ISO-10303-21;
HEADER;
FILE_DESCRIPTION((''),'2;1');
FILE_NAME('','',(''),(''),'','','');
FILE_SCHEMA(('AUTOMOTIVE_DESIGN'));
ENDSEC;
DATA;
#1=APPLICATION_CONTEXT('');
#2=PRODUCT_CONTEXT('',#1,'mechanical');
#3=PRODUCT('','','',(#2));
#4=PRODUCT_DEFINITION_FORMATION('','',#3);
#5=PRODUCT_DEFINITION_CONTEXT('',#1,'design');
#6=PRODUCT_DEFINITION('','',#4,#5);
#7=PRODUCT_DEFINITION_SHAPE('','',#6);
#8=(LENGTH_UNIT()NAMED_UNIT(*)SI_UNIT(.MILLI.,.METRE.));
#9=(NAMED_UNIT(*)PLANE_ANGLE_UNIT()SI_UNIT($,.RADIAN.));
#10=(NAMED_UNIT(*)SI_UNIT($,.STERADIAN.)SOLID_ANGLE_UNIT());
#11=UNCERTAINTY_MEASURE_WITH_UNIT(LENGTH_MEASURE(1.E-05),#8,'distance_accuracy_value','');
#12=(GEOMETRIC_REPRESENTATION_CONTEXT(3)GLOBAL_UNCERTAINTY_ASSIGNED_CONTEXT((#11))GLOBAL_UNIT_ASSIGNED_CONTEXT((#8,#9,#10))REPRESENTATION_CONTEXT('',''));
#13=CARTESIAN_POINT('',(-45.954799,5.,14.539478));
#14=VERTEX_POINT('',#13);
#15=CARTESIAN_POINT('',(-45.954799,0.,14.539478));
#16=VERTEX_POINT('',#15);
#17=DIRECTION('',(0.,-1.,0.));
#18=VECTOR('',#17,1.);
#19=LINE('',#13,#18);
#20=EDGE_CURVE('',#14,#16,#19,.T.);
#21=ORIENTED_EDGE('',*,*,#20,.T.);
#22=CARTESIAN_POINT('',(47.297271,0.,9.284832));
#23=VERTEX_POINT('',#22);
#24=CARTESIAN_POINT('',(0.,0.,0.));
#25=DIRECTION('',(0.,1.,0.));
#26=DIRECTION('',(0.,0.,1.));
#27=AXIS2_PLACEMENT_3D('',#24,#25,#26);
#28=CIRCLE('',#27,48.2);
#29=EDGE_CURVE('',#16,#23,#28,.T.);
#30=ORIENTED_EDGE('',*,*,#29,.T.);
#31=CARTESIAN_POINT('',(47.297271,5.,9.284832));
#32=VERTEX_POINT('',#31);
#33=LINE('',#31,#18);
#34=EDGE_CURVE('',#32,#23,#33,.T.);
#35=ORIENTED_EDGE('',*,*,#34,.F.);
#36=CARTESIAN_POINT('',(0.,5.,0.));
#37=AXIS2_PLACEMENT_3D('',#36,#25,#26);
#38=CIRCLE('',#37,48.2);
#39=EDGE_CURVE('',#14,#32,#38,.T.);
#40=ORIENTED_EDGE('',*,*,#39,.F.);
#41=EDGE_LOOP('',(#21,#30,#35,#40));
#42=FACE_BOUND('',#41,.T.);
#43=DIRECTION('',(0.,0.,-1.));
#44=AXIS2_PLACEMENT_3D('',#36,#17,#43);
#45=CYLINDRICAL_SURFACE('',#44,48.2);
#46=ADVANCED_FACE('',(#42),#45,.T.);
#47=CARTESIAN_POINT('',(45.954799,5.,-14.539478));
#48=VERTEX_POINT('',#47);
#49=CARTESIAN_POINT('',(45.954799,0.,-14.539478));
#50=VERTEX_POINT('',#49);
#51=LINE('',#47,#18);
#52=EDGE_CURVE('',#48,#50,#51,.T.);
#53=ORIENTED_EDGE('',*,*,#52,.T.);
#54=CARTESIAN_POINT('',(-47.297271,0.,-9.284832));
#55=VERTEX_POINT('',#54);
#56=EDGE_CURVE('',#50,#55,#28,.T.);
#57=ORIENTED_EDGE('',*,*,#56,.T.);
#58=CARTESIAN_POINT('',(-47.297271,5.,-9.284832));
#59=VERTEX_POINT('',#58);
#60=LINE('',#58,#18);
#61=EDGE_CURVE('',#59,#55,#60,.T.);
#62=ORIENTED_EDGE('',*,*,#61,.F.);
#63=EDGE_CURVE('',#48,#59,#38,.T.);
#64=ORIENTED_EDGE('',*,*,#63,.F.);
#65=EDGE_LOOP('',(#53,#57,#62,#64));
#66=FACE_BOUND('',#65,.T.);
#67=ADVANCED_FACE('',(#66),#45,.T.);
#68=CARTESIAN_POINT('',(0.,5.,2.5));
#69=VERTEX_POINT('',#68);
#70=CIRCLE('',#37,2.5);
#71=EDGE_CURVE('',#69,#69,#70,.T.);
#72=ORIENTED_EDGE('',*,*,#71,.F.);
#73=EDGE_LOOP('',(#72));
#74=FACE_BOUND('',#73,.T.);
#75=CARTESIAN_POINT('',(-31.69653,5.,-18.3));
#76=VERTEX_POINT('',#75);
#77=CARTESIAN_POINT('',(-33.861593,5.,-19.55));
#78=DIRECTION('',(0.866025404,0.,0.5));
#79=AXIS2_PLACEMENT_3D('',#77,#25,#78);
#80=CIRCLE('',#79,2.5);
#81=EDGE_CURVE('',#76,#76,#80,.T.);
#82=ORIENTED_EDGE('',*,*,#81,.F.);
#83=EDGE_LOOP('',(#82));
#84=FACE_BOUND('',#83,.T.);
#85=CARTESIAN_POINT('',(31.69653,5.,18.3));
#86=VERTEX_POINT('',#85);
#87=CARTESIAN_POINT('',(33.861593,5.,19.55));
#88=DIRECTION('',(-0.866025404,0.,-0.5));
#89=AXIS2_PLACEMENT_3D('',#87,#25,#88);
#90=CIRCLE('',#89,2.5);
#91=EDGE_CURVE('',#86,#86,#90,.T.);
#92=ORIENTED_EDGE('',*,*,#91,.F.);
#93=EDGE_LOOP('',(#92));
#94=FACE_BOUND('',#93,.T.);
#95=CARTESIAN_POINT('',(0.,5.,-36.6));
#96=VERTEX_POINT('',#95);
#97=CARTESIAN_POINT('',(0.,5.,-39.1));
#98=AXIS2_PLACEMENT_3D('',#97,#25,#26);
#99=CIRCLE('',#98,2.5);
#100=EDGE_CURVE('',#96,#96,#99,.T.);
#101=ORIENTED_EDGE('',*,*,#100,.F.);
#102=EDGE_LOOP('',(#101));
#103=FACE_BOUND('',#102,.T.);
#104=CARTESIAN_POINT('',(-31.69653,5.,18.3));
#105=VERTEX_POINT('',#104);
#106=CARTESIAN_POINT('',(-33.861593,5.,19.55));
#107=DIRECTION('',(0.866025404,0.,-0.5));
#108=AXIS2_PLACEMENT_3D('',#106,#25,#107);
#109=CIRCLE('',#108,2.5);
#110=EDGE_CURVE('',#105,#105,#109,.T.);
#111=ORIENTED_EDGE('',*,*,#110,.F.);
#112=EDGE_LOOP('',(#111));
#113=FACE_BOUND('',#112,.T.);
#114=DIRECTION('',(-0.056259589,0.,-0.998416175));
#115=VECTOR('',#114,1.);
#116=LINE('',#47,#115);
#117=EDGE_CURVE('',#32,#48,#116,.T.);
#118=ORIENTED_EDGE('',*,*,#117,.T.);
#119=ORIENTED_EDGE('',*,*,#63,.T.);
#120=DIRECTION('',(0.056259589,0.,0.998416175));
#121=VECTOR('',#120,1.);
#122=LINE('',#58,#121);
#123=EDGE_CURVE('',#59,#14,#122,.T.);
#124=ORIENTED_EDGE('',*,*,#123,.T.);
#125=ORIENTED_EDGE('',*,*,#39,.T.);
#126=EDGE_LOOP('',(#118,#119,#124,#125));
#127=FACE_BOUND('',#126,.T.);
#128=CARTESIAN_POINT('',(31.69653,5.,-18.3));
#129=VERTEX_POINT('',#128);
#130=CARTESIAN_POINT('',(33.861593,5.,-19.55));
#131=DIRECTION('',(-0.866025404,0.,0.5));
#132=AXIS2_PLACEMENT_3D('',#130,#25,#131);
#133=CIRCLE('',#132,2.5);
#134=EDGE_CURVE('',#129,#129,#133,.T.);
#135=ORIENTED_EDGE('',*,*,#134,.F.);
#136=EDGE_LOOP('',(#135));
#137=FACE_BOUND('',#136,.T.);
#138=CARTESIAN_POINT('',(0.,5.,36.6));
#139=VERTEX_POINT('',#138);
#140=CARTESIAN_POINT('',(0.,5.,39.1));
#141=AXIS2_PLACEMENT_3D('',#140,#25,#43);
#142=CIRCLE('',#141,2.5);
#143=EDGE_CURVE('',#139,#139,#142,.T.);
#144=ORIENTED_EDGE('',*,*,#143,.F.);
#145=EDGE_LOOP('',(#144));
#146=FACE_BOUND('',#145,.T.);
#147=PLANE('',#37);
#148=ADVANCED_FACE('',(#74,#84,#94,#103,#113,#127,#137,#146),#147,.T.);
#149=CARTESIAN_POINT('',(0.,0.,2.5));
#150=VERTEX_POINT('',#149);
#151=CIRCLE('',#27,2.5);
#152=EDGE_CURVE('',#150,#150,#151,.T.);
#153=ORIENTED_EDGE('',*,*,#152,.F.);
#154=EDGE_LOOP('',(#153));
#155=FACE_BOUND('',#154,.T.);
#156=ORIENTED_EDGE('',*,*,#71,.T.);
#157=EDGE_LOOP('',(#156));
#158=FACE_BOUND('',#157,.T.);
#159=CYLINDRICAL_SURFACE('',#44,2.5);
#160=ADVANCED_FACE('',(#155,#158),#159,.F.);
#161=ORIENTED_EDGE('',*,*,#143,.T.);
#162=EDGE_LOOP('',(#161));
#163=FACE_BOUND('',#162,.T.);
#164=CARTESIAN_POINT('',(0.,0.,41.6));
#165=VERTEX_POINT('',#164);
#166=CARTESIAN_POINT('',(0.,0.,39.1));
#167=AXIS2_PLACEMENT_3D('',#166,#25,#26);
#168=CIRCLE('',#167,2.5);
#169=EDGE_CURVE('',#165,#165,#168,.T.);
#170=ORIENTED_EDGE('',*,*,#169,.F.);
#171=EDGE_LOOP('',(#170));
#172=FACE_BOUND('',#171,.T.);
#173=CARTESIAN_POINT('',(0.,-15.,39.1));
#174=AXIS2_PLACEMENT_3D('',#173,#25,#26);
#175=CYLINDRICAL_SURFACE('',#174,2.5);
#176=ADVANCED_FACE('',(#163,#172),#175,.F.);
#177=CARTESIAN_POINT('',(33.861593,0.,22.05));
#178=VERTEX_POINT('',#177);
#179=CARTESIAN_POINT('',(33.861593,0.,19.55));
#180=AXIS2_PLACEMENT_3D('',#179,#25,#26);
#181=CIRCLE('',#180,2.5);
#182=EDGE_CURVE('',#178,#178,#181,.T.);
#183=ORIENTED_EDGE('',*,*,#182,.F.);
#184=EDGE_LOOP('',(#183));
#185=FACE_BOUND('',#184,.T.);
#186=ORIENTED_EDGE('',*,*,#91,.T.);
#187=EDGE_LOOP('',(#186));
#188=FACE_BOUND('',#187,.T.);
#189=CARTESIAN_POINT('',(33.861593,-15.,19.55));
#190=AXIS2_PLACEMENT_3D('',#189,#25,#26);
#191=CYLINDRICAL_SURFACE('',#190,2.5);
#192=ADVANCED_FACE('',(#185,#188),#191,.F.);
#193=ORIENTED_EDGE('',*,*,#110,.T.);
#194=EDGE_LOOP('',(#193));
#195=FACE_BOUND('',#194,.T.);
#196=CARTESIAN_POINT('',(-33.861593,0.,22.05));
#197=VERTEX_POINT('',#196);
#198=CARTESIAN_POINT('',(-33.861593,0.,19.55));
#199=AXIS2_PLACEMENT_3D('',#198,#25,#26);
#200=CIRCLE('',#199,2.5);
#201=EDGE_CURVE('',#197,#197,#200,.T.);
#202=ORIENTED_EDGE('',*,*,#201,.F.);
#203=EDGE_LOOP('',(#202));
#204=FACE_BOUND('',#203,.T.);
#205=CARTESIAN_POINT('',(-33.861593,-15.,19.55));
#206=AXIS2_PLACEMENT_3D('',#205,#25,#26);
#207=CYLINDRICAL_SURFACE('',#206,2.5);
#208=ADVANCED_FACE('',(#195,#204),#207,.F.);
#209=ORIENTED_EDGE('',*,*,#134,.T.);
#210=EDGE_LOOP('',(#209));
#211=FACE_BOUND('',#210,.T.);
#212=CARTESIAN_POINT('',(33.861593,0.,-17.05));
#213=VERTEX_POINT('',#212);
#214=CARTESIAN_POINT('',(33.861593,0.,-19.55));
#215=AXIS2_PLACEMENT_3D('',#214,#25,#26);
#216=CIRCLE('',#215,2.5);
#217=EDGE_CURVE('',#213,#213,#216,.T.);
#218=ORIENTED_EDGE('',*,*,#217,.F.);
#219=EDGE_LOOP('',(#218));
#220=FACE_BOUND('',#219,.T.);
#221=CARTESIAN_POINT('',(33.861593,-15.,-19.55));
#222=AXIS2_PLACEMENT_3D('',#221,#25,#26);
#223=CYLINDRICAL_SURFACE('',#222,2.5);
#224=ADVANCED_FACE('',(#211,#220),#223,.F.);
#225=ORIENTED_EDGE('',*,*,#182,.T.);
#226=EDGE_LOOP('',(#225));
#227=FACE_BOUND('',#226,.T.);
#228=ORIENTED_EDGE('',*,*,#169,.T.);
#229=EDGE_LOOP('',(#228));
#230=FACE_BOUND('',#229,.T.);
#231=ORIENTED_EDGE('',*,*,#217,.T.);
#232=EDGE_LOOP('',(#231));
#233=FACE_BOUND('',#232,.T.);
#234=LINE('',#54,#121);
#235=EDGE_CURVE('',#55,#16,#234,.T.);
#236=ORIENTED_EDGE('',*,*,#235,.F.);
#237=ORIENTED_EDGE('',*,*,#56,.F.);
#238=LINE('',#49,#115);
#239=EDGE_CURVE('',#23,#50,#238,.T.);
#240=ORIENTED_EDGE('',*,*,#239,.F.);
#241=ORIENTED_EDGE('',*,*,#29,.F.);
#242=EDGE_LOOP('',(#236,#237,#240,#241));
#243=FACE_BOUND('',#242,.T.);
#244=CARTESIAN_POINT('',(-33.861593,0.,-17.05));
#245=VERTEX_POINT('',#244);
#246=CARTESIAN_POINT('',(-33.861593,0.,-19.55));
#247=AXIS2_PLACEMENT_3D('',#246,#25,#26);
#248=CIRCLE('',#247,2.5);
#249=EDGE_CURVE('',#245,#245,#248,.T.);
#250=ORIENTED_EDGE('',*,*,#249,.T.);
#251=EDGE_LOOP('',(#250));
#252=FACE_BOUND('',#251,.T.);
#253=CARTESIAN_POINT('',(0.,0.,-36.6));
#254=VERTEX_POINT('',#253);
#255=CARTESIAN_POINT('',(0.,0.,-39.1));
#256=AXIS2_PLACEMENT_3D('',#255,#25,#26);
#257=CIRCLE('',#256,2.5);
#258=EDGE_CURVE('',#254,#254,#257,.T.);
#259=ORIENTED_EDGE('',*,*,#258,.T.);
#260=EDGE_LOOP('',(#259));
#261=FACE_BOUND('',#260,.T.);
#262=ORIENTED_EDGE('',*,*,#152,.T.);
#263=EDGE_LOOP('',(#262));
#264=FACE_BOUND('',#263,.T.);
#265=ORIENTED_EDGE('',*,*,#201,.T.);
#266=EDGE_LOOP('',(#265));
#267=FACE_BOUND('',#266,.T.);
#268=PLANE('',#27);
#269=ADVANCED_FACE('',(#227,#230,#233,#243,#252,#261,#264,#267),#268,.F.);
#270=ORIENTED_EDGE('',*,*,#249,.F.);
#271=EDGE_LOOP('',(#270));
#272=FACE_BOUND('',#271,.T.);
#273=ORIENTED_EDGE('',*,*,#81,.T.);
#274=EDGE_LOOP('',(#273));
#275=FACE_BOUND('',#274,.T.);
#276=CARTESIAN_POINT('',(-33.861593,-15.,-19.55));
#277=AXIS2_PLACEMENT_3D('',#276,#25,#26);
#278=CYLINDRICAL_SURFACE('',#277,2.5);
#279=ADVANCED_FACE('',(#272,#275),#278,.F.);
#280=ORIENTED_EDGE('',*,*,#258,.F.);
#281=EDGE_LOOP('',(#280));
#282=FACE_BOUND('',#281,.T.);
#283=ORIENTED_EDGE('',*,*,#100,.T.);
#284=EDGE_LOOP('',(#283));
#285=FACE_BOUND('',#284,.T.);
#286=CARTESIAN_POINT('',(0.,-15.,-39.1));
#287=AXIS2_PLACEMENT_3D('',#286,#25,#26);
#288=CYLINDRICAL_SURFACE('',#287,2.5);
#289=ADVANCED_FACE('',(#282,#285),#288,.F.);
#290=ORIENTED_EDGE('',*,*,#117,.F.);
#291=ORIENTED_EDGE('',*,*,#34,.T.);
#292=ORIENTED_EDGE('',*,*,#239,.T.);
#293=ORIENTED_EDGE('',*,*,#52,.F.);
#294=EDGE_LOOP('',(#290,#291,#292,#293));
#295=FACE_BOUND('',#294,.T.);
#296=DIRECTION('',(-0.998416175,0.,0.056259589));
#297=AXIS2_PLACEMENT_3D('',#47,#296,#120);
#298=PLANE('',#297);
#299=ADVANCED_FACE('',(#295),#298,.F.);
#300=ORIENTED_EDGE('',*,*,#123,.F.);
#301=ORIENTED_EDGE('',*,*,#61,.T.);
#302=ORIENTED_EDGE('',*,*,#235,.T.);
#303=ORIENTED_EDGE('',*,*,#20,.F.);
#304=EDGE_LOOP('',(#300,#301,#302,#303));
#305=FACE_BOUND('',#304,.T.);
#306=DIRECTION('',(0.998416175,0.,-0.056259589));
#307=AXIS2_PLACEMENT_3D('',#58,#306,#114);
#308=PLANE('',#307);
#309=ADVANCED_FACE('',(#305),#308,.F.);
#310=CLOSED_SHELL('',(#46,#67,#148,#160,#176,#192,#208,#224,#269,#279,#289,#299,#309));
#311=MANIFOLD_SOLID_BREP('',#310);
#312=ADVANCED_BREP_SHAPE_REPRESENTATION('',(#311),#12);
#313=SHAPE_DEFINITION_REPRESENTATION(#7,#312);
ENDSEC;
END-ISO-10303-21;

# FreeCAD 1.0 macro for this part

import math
import FreeCAD as App
import Part
import Sketcher

V = App.Vector

doc = App.newDocument("Part")
body = doc.addObject("PartDesign::Body", "Body")

sketch1 = body.newObject("Sketcher::SketchObject", "Sketch")
sketch1.AttachmentSupport = (doc.getObject("XZ_Plane"), [""])
sketch1.MapMode = "FlatFace"
sketch1.addGeometry([
    Part.LineSegment(V(47.3, 9.3, 0), V(46, -14.5, 0)),
    Part.ArcOfCircle(Part.Circle(V(0, 0, 0), V(0, 0, 1), 48.2), math.radians(-169), math.radians(-18)),
    Part.LineSegment(V(-47.3, -9.3, 0), V(-46, 14.5, 0)),
    Part.ArcOfCircle(Part.Circle(V(0, 0, 0), V(0, 0, 1), 48.2), math.radians(11), math.radians(162)),
    Part.Circle(V(0, 0, 0), V(0, 0, 1), 2.5),
], False)
sketch1.addConstraint([
    Sketcher.Constraint("Coincident", 0, 2, 1, 2),
    Sketcher.Constraint("Coincident", 1, 1, 2, 1),
    Sketcher.Constraint("Coincident", 2, 2, 3, 2),
    Sketcher.Constraint("Coincident", 3, 1, 0, 1),
    Sketcher.Constraint("Coincident", 1, 3, -1, 1),
    Sketcher.Constraint("Coincident", 3, 3, -1, 1),
    Sketcher.Constraint("Coincident", 4, 3, -1, 1),
    Sketcher.Constraint("Equal", 1, 3),
    Sketcher.Constraint("Parallel", 0, 2),
    Sketcher.Constraint("Equal", 0, 2),
    Sketcher.Constraint("Diameter", 4, 5.0),
    Sketcher.Constraint("Radius", 1, 48.2),
    Sketcher.Constraint("DistanceX", -1, 1, 0, 2, 45.954799),
    Sketcher.Constraint("DistanceX", 1, 1, -1, 1, 47.297271),
])
pad1 = body.newObject("PartDesign::Pad", "Pad")
pad1.Profile = sketch1
pad1.Length = 5
pad1.Reversed = True

sketch2 = body.newObject("Sketcher::SketchObject", "Sketch001")
sketch2.AttachmentSupport = (doc.getObject("XZ_Plane"), [""])
sketch2.MapMode = "FlatFace"
sketch2.AttachmentOffset = App.Placement(V(0, 0, -5), App.Rotation())
sketch2.addGeometry(Part.Circle(V(0, -39.1, 0), V(0, 0, 1), 2.5), False)
sketch2.addConstraint([
    Sketcher.Constraint("PointOnObject", 0, 3, -2),
    Sketcher.Constraint("Diameter", 0, 5.0),
    Sketcher.Constraint("DistanceY", 0, 3, -1, 1, 39.1),
])
pocket1 = body.newObject("PartDesign::Pocket", "Pocket")
pocket1.Profile = sketch2
pocket1.Length = 20
pocket1.Reversed = True
doc.recompute()

polarpattern = body.newObject("PartDesign::PolarPattern", "PolarPattern")
polarpattern.Originals = [pocket1]
polarpattern.Axis = (doc.getObject("Y_Axis"), [""])
polarpattern.Angle = 360
polarpattern.Occurrences = 6
body.Tip = polarpattern

doc.recompute()
